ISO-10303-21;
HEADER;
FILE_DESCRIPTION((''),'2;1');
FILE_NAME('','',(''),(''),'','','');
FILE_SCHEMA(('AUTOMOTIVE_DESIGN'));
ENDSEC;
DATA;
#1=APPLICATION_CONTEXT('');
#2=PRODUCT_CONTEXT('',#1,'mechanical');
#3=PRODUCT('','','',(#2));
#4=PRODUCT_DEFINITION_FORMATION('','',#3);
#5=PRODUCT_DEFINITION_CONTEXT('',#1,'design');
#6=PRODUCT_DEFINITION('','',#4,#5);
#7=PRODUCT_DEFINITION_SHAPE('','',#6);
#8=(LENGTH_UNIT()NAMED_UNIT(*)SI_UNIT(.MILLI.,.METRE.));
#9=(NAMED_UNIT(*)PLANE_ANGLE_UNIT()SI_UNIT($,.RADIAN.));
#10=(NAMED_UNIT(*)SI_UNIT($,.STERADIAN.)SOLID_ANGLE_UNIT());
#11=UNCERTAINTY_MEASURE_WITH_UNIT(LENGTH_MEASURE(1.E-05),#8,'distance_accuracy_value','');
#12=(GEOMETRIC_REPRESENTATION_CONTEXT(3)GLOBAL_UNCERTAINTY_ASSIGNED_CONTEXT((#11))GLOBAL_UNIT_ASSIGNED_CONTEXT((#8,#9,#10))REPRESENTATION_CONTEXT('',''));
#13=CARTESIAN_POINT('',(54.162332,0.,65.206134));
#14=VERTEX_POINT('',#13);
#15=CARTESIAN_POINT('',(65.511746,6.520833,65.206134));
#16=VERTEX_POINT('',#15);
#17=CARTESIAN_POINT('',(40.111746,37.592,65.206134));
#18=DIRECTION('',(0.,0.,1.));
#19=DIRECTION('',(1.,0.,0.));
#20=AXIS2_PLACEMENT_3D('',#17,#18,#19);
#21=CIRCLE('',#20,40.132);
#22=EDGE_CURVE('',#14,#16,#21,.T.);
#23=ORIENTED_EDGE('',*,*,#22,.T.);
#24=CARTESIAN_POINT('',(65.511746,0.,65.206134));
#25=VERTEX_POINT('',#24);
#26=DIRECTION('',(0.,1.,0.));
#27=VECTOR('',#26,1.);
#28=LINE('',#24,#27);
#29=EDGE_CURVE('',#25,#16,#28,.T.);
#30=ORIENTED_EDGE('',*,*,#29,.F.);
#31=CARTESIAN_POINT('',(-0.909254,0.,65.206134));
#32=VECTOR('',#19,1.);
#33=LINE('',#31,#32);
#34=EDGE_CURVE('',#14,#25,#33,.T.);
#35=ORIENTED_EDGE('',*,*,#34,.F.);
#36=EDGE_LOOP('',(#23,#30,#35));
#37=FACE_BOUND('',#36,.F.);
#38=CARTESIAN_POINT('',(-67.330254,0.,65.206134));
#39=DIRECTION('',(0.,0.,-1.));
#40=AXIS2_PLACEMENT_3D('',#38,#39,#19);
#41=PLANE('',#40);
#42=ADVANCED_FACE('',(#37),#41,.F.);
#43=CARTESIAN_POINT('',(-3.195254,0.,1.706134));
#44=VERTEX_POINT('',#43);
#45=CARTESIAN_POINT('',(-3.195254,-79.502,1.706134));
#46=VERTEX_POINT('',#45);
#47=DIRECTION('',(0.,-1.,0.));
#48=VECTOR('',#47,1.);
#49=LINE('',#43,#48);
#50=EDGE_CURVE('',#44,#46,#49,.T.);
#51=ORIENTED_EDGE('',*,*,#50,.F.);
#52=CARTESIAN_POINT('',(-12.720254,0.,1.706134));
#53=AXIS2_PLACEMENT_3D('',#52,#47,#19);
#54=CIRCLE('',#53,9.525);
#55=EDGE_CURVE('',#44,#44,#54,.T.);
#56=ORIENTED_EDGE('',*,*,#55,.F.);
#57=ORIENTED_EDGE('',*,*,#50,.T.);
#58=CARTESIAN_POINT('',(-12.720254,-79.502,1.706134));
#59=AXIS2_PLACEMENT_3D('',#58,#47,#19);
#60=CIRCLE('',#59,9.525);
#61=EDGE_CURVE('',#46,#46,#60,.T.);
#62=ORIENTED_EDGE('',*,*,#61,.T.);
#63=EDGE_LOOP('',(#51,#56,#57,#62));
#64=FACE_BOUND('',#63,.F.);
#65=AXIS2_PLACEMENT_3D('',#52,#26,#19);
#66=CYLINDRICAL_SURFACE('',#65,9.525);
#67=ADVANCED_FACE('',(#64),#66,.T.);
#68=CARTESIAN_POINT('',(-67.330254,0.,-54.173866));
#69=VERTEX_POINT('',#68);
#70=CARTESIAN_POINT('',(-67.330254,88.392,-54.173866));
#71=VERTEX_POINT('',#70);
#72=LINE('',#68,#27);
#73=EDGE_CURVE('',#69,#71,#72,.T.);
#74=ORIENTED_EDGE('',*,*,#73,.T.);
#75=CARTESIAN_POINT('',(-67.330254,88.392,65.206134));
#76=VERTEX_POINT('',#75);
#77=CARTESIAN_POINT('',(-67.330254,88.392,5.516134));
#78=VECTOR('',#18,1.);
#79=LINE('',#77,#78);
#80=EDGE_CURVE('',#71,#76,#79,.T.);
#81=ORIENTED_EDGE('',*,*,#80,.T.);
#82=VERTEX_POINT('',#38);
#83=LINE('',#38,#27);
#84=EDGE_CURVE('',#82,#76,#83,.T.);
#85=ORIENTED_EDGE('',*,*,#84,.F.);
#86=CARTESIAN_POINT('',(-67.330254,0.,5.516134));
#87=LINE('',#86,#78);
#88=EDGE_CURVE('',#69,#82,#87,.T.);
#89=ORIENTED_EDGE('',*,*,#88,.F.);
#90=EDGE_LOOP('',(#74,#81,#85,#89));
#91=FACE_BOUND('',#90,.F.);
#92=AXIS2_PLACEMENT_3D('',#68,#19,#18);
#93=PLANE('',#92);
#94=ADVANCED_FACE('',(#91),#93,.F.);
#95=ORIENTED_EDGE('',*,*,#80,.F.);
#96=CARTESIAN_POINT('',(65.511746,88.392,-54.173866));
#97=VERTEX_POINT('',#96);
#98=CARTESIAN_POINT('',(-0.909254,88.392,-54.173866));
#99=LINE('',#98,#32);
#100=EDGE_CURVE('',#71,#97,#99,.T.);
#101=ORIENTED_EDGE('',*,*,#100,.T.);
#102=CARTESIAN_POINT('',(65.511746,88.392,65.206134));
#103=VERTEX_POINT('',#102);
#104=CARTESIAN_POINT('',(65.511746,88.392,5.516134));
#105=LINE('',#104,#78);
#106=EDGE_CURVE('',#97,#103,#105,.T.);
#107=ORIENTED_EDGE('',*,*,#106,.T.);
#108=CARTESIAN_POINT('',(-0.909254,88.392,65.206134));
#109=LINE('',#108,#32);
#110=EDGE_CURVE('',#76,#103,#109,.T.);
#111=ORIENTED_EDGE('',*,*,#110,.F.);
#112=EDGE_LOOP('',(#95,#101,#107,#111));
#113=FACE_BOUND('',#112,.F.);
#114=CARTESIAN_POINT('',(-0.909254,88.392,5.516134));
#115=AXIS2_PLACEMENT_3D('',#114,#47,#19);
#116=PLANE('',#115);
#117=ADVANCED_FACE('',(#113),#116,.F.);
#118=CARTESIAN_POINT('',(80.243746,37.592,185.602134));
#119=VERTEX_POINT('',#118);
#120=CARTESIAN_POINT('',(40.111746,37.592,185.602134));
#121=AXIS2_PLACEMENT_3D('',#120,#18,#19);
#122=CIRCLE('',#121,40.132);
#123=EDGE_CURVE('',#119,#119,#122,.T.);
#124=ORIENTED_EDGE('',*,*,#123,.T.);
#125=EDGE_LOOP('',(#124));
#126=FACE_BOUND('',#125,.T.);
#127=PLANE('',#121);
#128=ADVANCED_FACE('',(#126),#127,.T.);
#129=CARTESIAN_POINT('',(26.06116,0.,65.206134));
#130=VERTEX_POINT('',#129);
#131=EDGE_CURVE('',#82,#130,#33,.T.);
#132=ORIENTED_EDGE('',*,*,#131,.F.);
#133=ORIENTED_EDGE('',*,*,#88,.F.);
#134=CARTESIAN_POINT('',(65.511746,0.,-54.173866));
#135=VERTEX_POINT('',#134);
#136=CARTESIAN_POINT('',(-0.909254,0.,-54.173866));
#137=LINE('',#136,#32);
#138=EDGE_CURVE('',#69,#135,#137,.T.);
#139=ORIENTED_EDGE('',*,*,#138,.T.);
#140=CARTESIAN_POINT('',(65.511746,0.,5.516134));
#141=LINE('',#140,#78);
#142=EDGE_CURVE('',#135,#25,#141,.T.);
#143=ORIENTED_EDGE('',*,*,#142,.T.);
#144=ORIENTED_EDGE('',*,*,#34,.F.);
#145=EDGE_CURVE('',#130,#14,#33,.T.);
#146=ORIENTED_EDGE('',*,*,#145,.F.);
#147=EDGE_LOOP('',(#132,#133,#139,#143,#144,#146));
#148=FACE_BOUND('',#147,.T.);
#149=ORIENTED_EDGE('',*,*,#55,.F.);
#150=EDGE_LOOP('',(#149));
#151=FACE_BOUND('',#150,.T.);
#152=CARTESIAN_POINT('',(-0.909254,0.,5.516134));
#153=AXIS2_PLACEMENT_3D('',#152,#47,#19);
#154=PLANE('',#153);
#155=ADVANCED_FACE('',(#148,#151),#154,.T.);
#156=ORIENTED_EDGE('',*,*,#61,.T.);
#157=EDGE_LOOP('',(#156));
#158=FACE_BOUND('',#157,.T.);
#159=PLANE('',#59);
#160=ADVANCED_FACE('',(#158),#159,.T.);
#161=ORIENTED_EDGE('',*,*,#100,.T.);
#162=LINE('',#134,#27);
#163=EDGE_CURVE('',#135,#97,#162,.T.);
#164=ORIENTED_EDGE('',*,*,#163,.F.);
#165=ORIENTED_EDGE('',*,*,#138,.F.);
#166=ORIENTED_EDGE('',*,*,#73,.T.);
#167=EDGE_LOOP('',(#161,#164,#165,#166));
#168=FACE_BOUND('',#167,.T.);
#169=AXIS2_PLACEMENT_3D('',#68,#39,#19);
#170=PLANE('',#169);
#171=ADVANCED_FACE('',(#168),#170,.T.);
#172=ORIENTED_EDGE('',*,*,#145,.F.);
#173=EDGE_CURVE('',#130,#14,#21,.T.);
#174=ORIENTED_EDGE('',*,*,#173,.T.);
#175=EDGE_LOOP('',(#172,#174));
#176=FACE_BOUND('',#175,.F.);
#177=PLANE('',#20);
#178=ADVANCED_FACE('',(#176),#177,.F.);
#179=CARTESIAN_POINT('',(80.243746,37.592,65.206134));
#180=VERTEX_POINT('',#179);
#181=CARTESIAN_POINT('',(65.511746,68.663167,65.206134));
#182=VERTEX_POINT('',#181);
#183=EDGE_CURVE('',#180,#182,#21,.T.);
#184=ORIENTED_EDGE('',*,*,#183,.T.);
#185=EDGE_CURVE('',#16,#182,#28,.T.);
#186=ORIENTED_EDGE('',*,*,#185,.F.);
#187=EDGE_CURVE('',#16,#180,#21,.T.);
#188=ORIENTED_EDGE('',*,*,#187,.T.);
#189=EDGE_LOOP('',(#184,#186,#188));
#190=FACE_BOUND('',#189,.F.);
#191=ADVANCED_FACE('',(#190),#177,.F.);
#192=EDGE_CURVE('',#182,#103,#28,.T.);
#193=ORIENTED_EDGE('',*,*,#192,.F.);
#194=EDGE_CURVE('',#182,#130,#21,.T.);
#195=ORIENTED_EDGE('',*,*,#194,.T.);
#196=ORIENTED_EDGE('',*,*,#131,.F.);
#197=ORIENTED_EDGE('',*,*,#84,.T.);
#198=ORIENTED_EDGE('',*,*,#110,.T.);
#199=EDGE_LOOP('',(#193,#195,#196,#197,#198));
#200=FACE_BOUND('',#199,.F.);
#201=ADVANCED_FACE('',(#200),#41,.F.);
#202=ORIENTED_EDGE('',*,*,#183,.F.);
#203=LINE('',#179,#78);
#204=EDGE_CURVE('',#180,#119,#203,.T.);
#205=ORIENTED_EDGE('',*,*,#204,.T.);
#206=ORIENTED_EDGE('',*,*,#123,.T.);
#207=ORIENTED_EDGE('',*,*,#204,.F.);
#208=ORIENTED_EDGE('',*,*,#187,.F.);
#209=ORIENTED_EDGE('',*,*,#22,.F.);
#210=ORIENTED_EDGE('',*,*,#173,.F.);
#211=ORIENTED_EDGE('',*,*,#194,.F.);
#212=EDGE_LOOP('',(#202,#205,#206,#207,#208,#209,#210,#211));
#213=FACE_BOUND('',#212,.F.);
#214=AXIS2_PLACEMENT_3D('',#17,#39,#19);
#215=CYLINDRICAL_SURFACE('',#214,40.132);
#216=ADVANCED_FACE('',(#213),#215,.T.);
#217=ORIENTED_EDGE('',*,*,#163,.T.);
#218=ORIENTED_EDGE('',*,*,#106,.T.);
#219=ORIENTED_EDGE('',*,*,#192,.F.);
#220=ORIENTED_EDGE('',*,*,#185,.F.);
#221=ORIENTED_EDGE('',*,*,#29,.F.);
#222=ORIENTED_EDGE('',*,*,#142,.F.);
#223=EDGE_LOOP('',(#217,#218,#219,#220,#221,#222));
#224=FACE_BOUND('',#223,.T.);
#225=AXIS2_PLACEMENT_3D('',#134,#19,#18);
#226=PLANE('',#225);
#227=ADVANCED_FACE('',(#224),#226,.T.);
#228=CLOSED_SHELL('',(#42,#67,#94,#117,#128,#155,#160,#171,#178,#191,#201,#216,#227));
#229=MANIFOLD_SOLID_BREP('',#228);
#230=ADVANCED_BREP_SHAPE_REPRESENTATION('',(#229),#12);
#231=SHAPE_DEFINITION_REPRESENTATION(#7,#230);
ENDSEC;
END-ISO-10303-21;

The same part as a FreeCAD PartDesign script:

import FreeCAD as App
import Part
import Sketcher
Q = App.Units.Quantity

doc = App.newDocument("Part")
body = doc.addObject("PartDesign::Body", "Body")

# Sketch on XZ plane
sketch1 = body.newObject("Sketcher::SketchObject", "Sketch")
sketch1.AttachmentSupport = (doc.getObject("XZ_Plane"), [""])
sketch1.MapMode = "FlatFace"
sketch1.addGeometry([
    Part.LineSegment(App.Vector(-67, 65, 0), App.Vector(-67, -54, 0)),
    Part.LineSegment(App.Vector(-67, -54, 0), App.Vector(66, -54, 0)),
    Part.LineSegment(App.Vector(66, -54, 0), App.Vector(66, 65, 0)),
    Part.LineSegment(App.Vector(66, 65, 0), App.Vector(-67, 65, 0)),
], False)
sketch1.addConstraint([
    Sketcher.Constraint("Coincident", 0, 2, 1, 1),
    Sketcher.Constraint("Coincident", 1, 2, 2, 1),
    Sketcher.Constraint("Coincident", 2, 2, 3, 1),
    Sketcher.Constraint("Coincident", 3, 2, 0, 1),
    Sketcher.Constraint("Vertical", 0),
    Sketcher.Constraint("Horizontal", 1),
    Sketcher.Constraint("Vertical", 2),
    Sketcher.Constraint("Horizontal", 3),
    Sketcher.Constraint("DistanceY", 0, 2, 0, 1, Q("4.7 in")),
    Sketcher.Constraint("DistanceX", 1, 1, 1, 2, Q("5.23 in")),
    Sketcher.Constraint("DistanceX", 0, 2, -1, 1, 67.330254),
    Sketcher.Constraint("DistanceY", 0, 2, -1, 1, 54.173866),
])
pad1 = body.newObject("PartDesign::Pad", "Pad")
pad1.Profile = sketch1
pad1.Length = Q("3.48 in")
pad1.Reversed = True

# Sketch on XY plane
sketch2 = body.newObject("Sketcher::SketchObject", "Sketch001")
sketch2.AttachmentSupport = (doc.getObject("XY_Plane"), [""])
sketch2.MapMode = "FlatFace"
sketch2.AttachmentOffset = App.Placement(App.Vector(0, 0, 65.206134), App.Rotation())
sketch2.addGeometry(Part.Circle(App.Vector(40, 38, 0), App.Vector(0, 0, 1), 40), False)
sketch2.addConstraint([
    Sketcher.Constraint("Diameter", 0, Q("3.16 in")),
    Sketcher.Constraint("DistanceY", -1, 1, 0, 3, Q("1.48 in")),
    Sketcher.Constraint("DistanceX", -1, 1, 0, 3, 40.111746),
])
pad2 = body.newObject("PartDesign::Pad", "Pad001")
pad2.Profile = sketch2
pad2.Length = Q("4.74 in")

# Sketch on XZ plane
sketch3 = body.newObject("Sketcher::SketchObject", "Sketch002")
sketch3.AttachmentSupport = (doc.getObject("XZ_Plane"), [""])
sketch3.MapMode = "FlatFace"
sketch3.addGeometry(Part.Circle(App.Vector(-13, 2, 0), App.Vector(0, 0, 1), 10), False)
sketch3.addConstraint([
    Sketcher.Constraint("Diameter", 0, Q("0.75 in")),
    Sketcher.Constraint("DistanceX", 0, 3, -1, 1, 12.720254),
    Sketcher.Constraint("DistanceY", -1, 1, 0, 3, 1.706134),
])
pad3 = body.newObject("PartDesign::Pad", "Pad002")
pad3.Profile = sketch3
pad3.Length = Q("3.13 in")

doc.recompute()
